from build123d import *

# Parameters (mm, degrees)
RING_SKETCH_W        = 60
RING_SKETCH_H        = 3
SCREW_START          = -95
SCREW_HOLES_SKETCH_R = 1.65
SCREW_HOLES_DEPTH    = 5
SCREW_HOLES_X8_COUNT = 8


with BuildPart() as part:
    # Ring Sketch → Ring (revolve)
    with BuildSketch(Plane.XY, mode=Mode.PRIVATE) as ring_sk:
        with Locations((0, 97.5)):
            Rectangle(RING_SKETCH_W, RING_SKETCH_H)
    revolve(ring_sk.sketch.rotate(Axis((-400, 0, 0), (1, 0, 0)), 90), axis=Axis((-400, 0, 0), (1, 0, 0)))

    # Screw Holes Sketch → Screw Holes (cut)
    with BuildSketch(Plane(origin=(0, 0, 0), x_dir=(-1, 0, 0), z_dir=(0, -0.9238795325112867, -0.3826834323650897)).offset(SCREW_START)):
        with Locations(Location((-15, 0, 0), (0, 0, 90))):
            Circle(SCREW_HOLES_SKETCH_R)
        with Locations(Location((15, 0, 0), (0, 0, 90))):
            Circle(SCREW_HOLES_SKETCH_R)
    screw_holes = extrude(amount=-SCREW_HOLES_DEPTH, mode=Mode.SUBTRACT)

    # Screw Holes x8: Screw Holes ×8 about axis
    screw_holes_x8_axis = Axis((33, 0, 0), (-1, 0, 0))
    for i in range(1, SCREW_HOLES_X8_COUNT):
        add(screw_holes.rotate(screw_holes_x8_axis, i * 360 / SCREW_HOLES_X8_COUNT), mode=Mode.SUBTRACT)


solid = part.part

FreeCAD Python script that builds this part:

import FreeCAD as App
import Part
import Sketcher
from FreeCAD import Vector
Q = App.Units.Quantity

doc = App.newDocument("Part")
body = doc.addObject("PartDesign::Body", "Body")

# Sketch on XY plane
sketch1 = doc.addObject("Sketcher::SketchObject", "Sketch")
body.addObject(sketch1)
sketch1.AttachmentSupport = (doc.XY_Plane, [""])
sketch1.MapMode = "FlatFace"
sketch1.addGeometry([
    Part.LineSegment(Vector(-30, 99, 0), Vector(-30, 96, 0)),
    Part.LineSegment(Vector(-30, 96, 0), Vector(30, 96, 0)),
    Part.LineSegment(Vector(30, 96, 0), Vector(30, 99, 0)),
    Part.LineSegment(Vector(30, 99, 0), Vector(-30, 99, 0)),
], False)
sketch1.addConstraint([
    Sketcher.Constraint("Coincident", 0, 2, 1, 1),
    Sketcher.Constraint("Coincident", 1, 2, 2, 1),
    Sketcher.Constraint("Coincident", 2, 2, 3, 1),
    Sketcher.Constraint("Coincident", 3, 2, 0, 1),
    Sketcher.Constraint("Vertical", 0),
    Sketcher.Constraint("Horizontal", 1),
    Sketcher.Constraint("Vertical", 2),
    Sketcher.Constraint("Horizontal", 3),
    Sketcher.Constraint("DistanceX", 1, 1, 1, 2, Q("60 mm")),
    Sketcher.Constraint("DistanceY", 0, 2, 0, 1, Q("3 mm")),
    Sketcher.Constraint("DistanceX", 0, 2, -1, 1, Q("30 mm")),
    Sketcher.Constraint("DistanceY", -1, 1, 0, 2, Q("96 mm")),
])
revolution = doc.addObject("PartDesign::Revolution", "Revolution")
body.addObject(revolution)
revolution.Profile = sketch1
revolution.ReferenceAxis = (sketch1, ["H_Axis"])
revolution.Angle = 360

# Sketch on an angled plane
sketch2 = doc.addObject("Sketcher::SketchObject", "Sketch001")
body.addObject(sketch2)
sketch2.Placement = App.Placement(Vector(0, 87.768556, 36.354926), App.Rotation(Vector(-1, 0, 0), Vector(0, 0.382683432, -0.923879533), Vector(0, -0.923879533, -0.382683432), "ZXY"))
sketch2.addGeometry([
    Part.Circle(Vector(-15, 0, 0), Vector(0, 0, 1), 1.65),
    Part.Circle(Vector(15, 0, 0), Vector(0, 0, 1), 1.65),
], False)
sketch2.addConstraint([
    Sketcher.Constraint("Equal", 0, 1),
    Sketcher.Constraint("Symmetric", 0, 3, 1, 3, -1, 1),
    Sketcher.Constraint("PointOnObject", 0, 3, -1),
    Sketcher.Constraint("Diameter", 0, Q("3.3 mm")),
    Sketcher.Constraint("DistanceX", 0, 3, -1, 1, Q("15 mm")),
])
pocket1 = doc.addObject("PartDesign::Pocket", "Pocket")
body.addObject(pocket1)
pocket1.Profile = sketch2
pocket1.Length = 5
doc.recompute()

polarpattern = doc.addObject("PartDesign::PolarPattern", "PolarPattern")
body.addObject(polarpattern)
polarpattern.Originals = [pocket1]
polarpattern.Axis = (doc.X_Axis, [""])
polarpattern.Angle = 360
polarpattern.Occurrences = 8
body.Tip = polarpattern

doc.recompute()
